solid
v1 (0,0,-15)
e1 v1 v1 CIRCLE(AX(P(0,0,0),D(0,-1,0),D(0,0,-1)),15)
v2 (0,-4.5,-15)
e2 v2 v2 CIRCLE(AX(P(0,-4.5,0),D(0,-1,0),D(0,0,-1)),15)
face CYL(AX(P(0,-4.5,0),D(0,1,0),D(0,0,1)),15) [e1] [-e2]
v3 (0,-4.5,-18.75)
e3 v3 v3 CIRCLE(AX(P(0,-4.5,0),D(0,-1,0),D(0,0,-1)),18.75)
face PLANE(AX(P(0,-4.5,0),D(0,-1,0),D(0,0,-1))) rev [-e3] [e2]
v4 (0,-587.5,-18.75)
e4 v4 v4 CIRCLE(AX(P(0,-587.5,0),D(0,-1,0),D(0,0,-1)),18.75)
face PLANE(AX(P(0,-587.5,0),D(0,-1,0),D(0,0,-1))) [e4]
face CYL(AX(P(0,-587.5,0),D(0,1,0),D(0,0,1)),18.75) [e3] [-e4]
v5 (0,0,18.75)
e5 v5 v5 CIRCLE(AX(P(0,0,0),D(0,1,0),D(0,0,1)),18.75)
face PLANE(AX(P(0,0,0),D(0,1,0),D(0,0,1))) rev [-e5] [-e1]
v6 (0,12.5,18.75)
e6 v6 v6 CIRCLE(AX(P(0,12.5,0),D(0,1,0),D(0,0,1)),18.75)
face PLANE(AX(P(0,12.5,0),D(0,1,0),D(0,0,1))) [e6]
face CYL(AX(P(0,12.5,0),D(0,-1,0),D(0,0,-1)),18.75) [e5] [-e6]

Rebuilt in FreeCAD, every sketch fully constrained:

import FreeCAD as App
import Part
import Sketcher
from FreeCAD import Vector
Q = App.Units.Quantity

doc = App.newDocument("Part")
body = doc.addObject("PartDesign::Body", "Body")

sketch1 = doc.addObject("Sketcher::SketchObject", "Sketch")
body.addObject(sketch1)
sketch1.AttachmentSupport = (doc.XZ_Plane, [""])
sketch1.MapMode = "FlatFace"
sketch1.addGeometry(Part.Circle(Vector(0, 0, 0), Vector(0, 0, 1), 19), False)
sketch1.addConstraint([
    Sketcher.Constraint("Coincident", 0, 3, -1, 1),
    Sketcher.Constraint("Diameter", 0, Q("37.5 mm")),
])
pad1 = doc.addObject("PartDesign::Pad", "Pad")
body.addObject(pad1)
pad1.Profile = sketch1
pad1.Length = 12.5
pad1.Reversed = True

sketch2 = doc.addObject("Sketcher::SketchObject", "Sketch001")
body.addObject(sketch2)
sketch2.AttachmentSupport = (doc.XZ_Plane, [""])
sketch2.MapMode = "FlatFace"
sketch2.addGeometry(Part.Circle(Vector(0, 0, 0), Vector(0, 0, 1), 15), False)
sketch2.addConstraint([
    Sketcher.Constraint("Coincident", 0, 3, -1, 1),
    Sketcher.Constraint("Diameter", 0, Q("30 mm")),
])
pad2 = doc.addObject("PartDesign::Pad", "Pad001")
body.addObject(pad2)
pad2.Profile = sketch2
pad2.Length = 4.5

sketch3 = doc.addObject("Sketcher::SketchObject", "Sketch002")
body.addObject(sketch3)
sketch3.AttachmentSupport = (doc.XZ_Plane, [""])
sketch3.MapMode = "FlatFace"
sketch3.AttachmentOffset = App.Placement(Vector(0, 0, 587.5), App.Rotation())
sketch3.addGeometry(Part.Circle(Vector(0, 0, 0), Vector(0, 0, 1), 19), False)
sketch3.addConstraint([
    Sketcher.Constraint("Coincident", 0, 3, -1, 1),
    Sketcher.Constraint("Diameter", 0, Q("37.5 mm")),
])
pad3 = doc.addObject("PartDesign::Pad", "Pad002")
body.addObject(pad3)
pad3.Profile = sketch3
pad3.Length = 583
pad3.Reversed = True

doc.recompute()
